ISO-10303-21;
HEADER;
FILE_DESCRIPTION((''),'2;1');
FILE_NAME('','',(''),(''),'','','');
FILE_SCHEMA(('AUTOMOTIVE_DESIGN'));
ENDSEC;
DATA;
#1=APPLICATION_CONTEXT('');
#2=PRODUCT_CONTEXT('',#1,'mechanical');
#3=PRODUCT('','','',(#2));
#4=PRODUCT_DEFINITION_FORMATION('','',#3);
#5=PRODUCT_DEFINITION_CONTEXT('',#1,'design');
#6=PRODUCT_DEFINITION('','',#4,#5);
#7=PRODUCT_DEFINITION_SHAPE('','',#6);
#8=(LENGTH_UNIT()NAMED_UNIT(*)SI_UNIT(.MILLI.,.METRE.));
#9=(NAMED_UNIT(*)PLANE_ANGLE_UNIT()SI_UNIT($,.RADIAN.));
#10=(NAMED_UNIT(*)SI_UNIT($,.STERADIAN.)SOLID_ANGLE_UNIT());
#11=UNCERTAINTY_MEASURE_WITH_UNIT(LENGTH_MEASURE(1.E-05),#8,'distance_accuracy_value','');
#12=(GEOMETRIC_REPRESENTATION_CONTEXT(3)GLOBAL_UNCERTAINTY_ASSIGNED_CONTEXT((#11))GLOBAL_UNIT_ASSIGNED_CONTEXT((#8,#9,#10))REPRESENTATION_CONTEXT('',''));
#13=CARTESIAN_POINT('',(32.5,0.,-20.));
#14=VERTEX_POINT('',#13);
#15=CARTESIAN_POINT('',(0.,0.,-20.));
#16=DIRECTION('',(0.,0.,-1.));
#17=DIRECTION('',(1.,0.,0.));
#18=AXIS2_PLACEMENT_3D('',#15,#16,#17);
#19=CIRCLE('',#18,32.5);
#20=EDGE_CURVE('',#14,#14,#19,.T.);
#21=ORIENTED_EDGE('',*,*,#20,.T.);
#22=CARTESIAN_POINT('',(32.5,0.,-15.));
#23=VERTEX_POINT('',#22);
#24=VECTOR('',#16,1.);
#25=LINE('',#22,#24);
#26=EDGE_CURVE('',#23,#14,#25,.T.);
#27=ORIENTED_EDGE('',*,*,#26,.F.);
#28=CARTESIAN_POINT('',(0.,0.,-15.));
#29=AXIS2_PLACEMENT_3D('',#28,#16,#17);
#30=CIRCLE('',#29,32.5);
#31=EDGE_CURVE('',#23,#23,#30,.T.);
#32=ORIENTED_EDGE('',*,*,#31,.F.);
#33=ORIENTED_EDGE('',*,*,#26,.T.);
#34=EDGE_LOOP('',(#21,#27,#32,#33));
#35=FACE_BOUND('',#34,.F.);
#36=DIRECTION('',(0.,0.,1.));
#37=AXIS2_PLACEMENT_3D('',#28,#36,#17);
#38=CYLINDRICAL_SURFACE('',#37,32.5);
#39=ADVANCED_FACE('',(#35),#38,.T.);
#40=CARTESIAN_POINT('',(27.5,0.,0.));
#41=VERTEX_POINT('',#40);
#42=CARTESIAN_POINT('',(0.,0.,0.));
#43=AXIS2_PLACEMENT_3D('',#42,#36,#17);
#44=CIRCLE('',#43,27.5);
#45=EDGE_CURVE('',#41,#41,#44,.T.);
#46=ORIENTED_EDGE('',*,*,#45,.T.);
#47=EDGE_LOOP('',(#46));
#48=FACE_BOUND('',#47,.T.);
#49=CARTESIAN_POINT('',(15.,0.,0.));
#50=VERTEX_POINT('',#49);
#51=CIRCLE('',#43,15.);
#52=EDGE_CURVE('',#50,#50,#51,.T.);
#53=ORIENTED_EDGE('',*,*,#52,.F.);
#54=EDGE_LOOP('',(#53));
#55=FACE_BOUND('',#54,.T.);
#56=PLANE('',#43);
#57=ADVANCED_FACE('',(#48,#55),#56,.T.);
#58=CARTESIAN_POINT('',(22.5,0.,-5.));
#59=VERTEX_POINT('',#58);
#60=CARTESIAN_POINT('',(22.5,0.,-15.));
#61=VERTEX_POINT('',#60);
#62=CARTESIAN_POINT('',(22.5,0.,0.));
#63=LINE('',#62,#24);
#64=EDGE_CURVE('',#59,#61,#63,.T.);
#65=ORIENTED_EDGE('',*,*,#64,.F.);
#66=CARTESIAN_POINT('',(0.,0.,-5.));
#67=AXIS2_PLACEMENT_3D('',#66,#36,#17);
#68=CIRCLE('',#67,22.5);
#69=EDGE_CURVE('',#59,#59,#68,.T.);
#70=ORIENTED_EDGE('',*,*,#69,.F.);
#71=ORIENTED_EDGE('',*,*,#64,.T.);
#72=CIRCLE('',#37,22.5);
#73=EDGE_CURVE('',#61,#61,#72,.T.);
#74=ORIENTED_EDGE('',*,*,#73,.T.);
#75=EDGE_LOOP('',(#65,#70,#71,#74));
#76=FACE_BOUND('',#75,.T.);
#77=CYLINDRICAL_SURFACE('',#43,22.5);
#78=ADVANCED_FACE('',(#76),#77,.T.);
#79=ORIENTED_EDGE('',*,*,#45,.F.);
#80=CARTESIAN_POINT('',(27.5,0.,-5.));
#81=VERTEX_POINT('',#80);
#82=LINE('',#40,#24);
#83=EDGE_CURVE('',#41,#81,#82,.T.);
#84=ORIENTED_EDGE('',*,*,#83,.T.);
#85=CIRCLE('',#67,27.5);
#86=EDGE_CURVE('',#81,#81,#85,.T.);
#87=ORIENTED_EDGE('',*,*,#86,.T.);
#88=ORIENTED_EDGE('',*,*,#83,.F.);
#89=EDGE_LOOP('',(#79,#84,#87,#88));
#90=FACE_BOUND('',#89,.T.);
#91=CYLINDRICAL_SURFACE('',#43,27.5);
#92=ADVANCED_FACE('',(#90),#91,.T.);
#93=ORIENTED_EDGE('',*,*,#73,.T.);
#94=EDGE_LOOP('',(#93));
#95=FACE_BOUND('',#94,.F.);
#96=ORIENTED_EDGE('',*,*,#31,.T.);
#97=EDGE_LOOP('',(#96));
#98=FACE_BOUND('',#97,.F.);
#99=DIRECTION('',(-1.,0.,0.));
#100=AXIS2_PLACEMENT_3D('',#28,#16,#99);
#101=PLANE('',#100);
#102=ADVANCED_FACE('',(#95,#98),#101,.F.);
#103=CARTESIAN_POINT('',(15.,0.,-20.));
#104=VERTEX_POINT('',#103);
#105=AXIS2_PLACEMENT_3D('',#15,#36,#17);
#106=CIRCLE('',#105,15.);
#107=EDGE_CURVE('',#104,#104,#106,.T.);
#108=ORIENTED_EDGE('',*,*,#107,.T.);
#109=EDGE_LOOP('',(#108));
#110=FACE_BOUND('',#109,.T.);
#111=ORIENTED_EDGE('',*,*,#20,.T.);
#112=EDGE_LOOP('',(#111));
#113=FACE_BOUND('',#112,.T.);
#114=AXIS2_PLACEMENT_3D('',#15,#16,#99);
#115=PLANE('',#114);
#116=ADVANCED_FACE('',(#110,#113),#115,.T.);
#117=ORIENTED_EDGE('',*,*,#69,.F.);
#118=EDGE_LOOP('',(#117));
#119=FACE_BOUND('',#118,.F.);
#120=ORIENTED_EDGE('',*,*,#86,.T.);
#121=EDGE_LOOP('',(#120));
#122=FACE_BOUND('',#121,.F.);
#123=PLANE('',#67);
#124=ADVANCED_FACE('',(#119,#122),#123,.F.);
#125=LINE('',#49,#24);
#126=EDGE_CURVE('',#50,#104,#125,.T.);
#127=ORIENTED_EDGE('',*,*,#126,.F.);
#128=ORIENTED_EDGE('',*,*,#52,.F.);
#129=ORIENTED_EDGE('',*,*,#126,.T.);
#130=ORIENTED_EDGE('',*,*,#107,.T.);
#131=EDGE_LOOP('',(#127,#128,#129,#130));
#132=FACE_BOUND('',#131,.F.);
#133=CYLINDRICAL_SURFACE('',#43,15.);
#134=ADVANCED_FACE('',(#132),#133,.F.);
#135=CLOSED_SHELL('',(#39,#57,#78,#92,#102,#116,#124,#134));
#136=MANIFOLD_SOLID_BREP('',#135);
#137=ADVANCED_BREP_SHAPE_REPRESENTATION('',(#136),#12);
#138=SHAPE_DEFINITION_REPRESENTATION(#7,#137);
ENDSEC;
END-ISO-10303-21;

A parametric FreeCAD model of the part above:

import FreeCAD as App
import Part
import Sketcher

V = App.Vector
Q = App.Units.Quantity

doc = App.newDocument("Part")
body = doc.addObject("PartDesign::Body", "Body")

sketch1 = doc.addObject("Sketcher::SketchObject", "Sketch")
body.addObject(sketch1)
sketch1.AttachmentSupport = (doc.XY_Plane, [""])
sketch1.MapMode = "FlatFace"
sketch1.addGeometry(Part.Circle(V(0, 0, 0), V(0, 0, 1), 28), False)
sketch1.addConstraint([
    Sketcher.Constraint("Coincident", 0, 3, -1, 1),
    Sketcher.Constraint("Diameter", 0, Q("55 mm")),
])
pad1 = doc.addObject("PartDesign::Pad", "Pad")
body.addObject(pad1)
pad1.Profile = sketch1
pad1.Length = 5
pad1.Reversed = True

sketch2 = doc.addObject("Sketcher::SketchObject", "Sketch001")
body.addObject(sketch2)
sketch2.AttachmentSupport = (doc.XY_Plane, [""])
sketch2.MapMode = "FlatFace"
sketch2.addGeometry(Part.Circle(V(0, 0, 0), V(0, 0, 1), 22), False)
sketch2.addConstraint([
    Sketcher.Constraint("Coincident", 0, 3, -1, 1),
    Sketcher.Constraint("Diameter", 0, Q("45 mm")),
])
pad2 = doc.addObject("PartDesign::Pad", "Pad001")
body.addObject(pad2)
pad2.Profile = sketch2
pad2.Length = 15
pad2.Reversed = True

sketch3 = doc.addObject("Sketcher::SketchObject", "Sketch002")
body.addObject(sketch3)
sketch3.AttachmentSupport = (doc.XY_Plane, [""])
sketch3.MapMode = "FlatFace"
sketch3.AttachmentOffset = App.Placement(V(0, 0, -15), App.Rotation())
sketch3.addGeometry(Part.Circle(V(0, 0, 0), V(0, 0, 1), 32), False)
sketch3.addConstraint([
    Sketcher.Constraint("Coincident", 0, 3, -1, 1),
    Sketcher.Constraint("Diameter", 0, Q("65 mm")),
])
pad3 = doc.addObject("PartDesign::Pad", "Pad002")
body.addObject(pad3)
pad3.Profile = sketch3
pad3.Length = 5
pad3.Reversed = True

sketch4 = doc.addObject("Sketcher::SketchObject", "Sketch003")
body.addObject(sketch4)
sketch4.AttachmentSupport = (doc.XY_Plane, [""])
sketch4.MapMode = "FlatFace"
sketch4.addGeometry(Part.Circle(V(0, 0, 0), V(0, 0, 1), 15), False)
sketch4.addConstraint([
    Sketcher.Constraint("Coincident", 0, 3, -1, 1),
    Sketcher.Constraint("Diameter", 0, Q("30 mm")),
])
pocket1 = doc.addObject("PartDesign::Pocket", "Pocket")
body.addObject(pocket1)
pocket1.Profile = sketch4
pocket1.Length = 22

doc.recompute()
